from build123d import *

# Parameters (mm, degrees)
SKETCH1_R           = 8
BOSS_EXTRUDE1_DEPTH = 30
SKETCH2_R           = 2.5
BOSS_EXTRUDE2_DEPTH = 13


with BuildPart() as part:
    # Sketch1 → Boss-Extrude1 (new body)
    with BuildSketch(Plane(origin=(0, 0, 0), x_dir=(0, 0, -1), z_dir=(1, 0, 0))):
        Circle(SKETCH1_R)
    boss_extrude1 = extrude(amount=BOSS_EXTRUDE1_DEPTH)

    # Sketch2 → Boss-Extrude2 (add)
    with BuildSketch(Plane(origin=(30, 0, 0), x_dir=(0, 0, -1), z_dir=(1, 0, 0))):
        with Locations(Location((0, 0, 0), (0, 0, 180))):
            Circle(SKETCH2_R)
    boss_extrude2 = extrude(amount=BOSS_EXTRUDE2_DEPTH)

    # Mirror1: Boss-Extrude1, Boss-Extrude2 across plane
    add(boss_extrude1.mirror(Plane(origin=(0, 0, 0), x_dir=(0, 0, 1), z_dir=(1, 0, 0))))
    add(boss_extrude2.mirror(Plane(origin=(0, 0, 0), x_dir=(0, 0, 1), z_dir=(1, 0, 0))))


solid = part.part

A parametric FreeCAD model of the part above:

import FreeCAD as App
import Part
import Sketcher

doc = App.newDocument("Part")
body = doc.addObject("PartDesign::Body", "Body")

# Sketch on YZ plane
sketch1 = body.newObject("Sketcher::SketchObject", "Sketch")
sketch1.AttachmentSupport = (doc.getObject("YZ_Plane"), [""])
sketch1.MapMode = "FlatFace"
sketch1.addGeometry(Part.Circle(App.Vector(0, 0, 0), App.Vector(0, 0, 1), 8), False)
sketch1.addConstraint([
    Sketcher.Constraint("Coincident", 0, 3, -1, 1),
    Sketcher.Constraint("Diameter", 0, 16.0),
])
pad1 = body.newObject("PartDesign::Pad", "Pad")
pad1.Profile = sketch1
pad1.Length = 30

# Sketch on YZ plane
sketch2 = body.newObject("Sketcher::SketchObject", "Sketch001")
sketch2.AttachmentSupport = (doc.getObject("YZ_Plane"), [""])
sketch2.MapMode = "FlatFace"
sketch2.AttachmentOffset = App.Placement(App.Vector(0, 0, 30), App.Rotation())
sketch2.addGeometry(Part.Circle(App.Vector(0, 0, 0), App.Vector(0, 0, 1), 2.5), False)
sketch2.addConstraint([
    Sketcher.Constraint("Coincident", 0, 3, -1, 1),
    Sketcher.Constraint("Diameter", 0, 5.0),
])
pad2 = body.newObject("PartDesign::Pad", "Pad001")
pad2.Profile = sketch2
pad2.Length = 13
doc.recompute()

mirrored = body.newObject("PartDesign::Mirrored", "Mirrored")
mirrored.Originals = [pad1, pad2]
mirrored.MirrorPlane = (doc.getObject("YZ_Plane"), [""])
body.Tip = mirrored

doc.recompute()
